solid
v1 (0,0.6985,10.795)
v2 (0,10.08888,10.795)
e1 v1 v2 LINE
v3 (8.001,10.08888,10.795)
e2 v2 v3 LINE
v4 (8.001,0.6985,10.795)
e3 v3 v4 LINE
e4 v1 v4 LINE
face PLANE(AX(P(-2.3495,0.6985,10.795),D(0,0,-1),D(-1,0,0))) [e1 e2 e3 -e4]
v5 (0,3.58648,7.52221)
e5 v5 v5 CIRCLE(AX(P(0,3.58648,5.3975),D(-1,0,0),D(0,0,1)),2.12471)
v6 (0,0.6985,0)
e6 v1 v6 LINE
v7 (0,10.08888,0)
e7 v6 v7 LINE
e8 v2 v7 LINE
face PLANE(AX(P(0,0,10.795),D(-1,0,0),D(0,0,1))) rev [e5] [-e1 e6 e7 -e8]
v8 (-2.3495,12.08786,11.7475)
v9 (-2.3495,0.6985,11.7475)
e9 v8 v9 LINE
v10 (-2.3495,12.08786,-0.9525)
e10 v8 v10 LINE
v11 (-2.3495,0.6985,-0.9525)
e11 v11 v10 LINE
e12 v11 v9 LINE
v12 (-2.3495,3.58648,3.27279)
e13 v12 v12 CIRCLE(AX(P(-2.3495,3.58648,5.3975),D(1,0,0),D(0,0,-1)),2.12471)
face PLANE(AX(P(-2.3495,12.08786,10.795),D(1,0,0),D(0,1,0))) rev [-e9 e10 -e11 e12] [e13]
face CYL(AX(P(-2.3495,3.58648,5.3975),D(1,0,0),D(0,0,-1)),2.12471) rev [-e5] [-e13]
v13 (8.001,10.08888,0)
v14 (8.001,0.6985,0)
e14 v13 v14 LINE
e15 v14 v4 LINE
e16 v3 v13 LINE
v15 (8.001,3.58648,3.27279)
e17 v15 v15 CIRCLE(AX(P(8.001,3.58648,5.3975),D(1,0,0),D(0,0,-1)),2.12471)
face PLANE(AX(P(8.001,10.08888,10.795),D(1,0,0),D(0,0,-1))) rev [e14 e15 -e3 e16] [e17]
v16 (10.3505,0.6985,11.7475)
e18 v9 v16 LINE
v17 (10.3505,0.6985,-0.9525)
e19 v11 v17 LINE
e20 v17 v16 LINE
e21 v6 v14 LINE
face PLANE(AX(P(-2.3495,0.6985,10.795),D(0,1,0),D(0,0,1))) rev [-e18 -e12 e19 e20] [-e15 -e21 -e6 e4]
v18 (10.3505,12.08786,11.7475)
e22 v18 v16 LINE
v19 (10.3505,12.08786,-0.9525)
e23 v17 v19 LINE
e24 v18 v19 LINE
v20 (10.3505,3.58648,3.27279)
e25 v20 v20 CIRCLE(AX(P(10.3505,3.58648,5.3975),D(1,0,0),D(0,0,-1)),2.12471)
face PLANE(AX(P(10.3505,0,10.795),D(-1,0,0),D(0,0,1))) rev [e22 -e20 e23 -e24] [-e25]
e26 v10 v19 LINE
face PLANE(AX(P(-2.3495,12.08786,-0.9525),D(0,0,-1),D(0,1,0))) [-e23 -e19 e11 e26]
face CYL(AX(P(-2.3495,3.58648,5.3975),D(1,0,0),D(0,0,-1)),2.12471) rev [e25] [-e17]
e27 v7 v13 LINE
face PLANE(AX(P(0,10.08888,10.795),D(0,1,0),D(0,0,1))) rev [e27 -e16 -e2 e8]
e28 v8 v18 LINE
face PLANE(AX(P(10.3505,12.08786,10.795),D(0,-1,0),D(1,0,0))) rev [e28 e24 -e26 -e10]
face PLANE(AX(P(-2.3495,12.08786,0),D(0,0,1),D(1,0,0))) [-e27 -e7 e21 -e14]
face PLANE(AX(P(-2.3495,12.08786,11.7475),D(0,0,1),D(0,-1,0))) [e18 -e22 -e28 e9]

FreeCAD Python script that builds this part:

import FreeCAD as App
import Part
import Sketcher
Q = App.Units.Quantity


def add_polygon(sketch, points):
    """Adds a closed chain of lines whose ends are joined by coincident constraints."""
    first, n = sketch.GeometryCount, len(points)
    for a, b in zip(points, points[1:] + points[:1]):
        sketch.addGeometry(Part.LineSegment(App.Vector(*a, 0), App.Vector(*b, 0)), False)
    for i in range(n):
        sketch.addConstraint(Sketcher.Constraint("Coincident", first + i, 2, first + (i + 1) % n, 1))

doc = App.newDocument("Part")
body = doc.addObject("PartDesign::Body", "Body")

# Sketch on XY plane
sketch1 = body.newObject("Sketcher::SketchObject", "Sketch")
sketch1.AttachmentSupport = (doc.getObject("XY_Plane"), [""])
sketch1.MapMode = "FlatFace"
add_polygon(sketch1, [(0, 0), (0, 10.1), (8, 10.1), (8, 0), (10.4, 0), (10.4, 12.1), (-2.3, 12.1), (-2.3, 0)])  # lines 0-7
sketch1.addConstraint([
    Sketcher.Constraint("Vertical", 0),
    Sketcher.Constraint("Horizontal", 1),
    Sketcher.Constraint("Vertical", 2),
    Sketcher.Constraint("Horizontal", 3),
    Sketcher.Constraint("Vertical", 4),
    Sketcher.Constraint("Horizontal", 5),
    Sketcher.Constraint("Vertical", 6),
    Sketcher.Constraint("Horizontal", 7),
    Sketcher.Constraint("Coincident", 7, 2, -1, 1),
    Sketcher.Constraint("PointOnObject", 2, 2, -1),
    Sketcher.Constraint("Equal", 3, 7),
    Sketcher.Constraint("DistanceX", 5, 2, 5, 1, Q("0.5 in")),
    Sketcher.Constraint("DistanceX", 1, 1, 1, 2, Q("0.315 in")),
    Sketcher.Constraint("DistanceY", 0, 1, 0, 2, Q("0.3972 in")),
    Sketcher.Constraint("DistanceY", 4, 1, 4, 2, Q("0.4759 in")),
])
pad1 = body.newObject("PartDesign::Pad", "Pad")
pad1.Profile = sketch1
pad1.Length = Q("0.425 in")

# Sketch on YZ plane
sketch2 = body.newObject("Sketcher::SketchObject", "Sketch001")
sketch2.AttachmentSupport = (doc.getObject("YZ_Plane"), [""])
sketch2.MapMode = "FlatFace"
sketch2.AttachmentOffset = App.Placement(App.Vector(0, 0, 0.4075 * 25.4), App.Rotation())
sketch2.addGeometry(Part.Circle(App.Vector(3.6, 5.4, 0), App.Vector(0, 0, 1), 2.1), False)
sketch2.addConstraint([
    Sketcher.Constraint("Diameter", 0, Q("0.1673 in")),
    Sketcher.Constraint("DistanceX", -1, 1, 0, 3, Q("0.1412 in")),
    Sketcher.Constraint("DistanceY", -1, 1, 0, 3, Q("0.2125 in")),
])
pocket1 = body.newObject("PartDesign::Pocket", "Pocket")
pocket1.Profile = sketch2
pocket1.Type = "ThroughAll"

# Sketch on YZ plane
sketch3 = body.newObject("Sketcher::SketchObject", "Sketch002")
sketch3.AttachmentSupport = (doc.getObject("YZ_Plane"), [""])
sketch3.MapMode = "FlatFace"
sketch3.AttachmentOffset = App.Placement(App.Vector(0, 0, 0.4075 * 25.4), App.Rotation())
add_polygon(sketch3, [(0.7, 10.8), (0, 10.8), (0, 0), (0.7, 0)])  # lines 0-3
sketch3.addConstraint([
    Sketcher.Constraint("Horizontal", 0),
    Sketcher.Constraint("Vertical", 1),
    Sketcher.Constraint("Horizontal", 2),
    Sketcher.Constraint("Vertical", 3),
    Sketcher.Constraint("Coincident", 1, 2, -1, 1),
    Sketcher.Constraint("DistanceY", 1, 2, 1, 1, Q("0.425 in")),
    Sketcher.Constraint("DistanceX", 0, 2, 0, 1, Q("0.0275 in")),
])
pocket2 = body.newObject("PartDesign::Pocket", "Pocket001")
pocket2.Profile = sketch3
pocket2.Type = "ThroughAll"

# Sketch on YZ plane
sketch4 = body.newObject("Sketcher::SketchObject", "Sketch003")
sketch4.AttachmentSupport = (doc.getObject("YZ_Plane"), [""])
sketch4.MapMode = "FlatFace"
sketch4.AttachmentOffset = App.Placement(App.Vector(0, 0, 0.4075 * 25.4), App.Rotation())
add_polygon(sketch4, [(12.1, 11.7), (0.7, 11.7), (0.7, 10.8), (12.1, 10.8)])  # lines 0-3
add_polygon(sketch4, [(12.1, 0), (0.7, 0), (0.7, -1), (12.1, -1)])  # lines 4-7
sketch4.addConstraint([
    Sketcher.Constraint("Horizontal", 0),
    Sketcher.Constraint("Vertical", 1),
    Sketcher.Constraint("Horizontal", 2),
    Sketcher.Constraint("Vertical", 3),
    Sketcher.Constraint("Horizontal", 4),
    Sketcher.Constraint("Vertical", 5),
    Sketcher.Constraint("Horizontal", 6),
    Sketcher.Constraint("Vertical", 7),
    Sketcher.Constraint("PointOnObject", 4, 2, -1),
    Sketcher.Constraint("Vertical", 1, 2, 4, 2),
    Sketcher.Constraint("Vertical", 3, 2, 6, 2),
    Sketcher.Constraint("Equal", 3, 5),
    Sketcher.Constraint("DistanceY", 5, 2, 0, 2, Q("0.5 in")),
    Sketcher.Constraint("DistanceX", 0, 2, 0, 1, Q("0.4484 in")),
    Sketcher.Constraint("DistanceY", 1, 2, 1, 1, Q("0.0375 in")),
    Sketcher.Constraint("DistanceX", -1, 1, 0, 2, Q("0.0275 in")),
])
pad2 = body.newObject("PartDesign::Pad", "Pad001")
pad2.Profile = sketch4
pad2.Length = Q("0.5 in")
pad2.Reversed = True

doc.recompute()
